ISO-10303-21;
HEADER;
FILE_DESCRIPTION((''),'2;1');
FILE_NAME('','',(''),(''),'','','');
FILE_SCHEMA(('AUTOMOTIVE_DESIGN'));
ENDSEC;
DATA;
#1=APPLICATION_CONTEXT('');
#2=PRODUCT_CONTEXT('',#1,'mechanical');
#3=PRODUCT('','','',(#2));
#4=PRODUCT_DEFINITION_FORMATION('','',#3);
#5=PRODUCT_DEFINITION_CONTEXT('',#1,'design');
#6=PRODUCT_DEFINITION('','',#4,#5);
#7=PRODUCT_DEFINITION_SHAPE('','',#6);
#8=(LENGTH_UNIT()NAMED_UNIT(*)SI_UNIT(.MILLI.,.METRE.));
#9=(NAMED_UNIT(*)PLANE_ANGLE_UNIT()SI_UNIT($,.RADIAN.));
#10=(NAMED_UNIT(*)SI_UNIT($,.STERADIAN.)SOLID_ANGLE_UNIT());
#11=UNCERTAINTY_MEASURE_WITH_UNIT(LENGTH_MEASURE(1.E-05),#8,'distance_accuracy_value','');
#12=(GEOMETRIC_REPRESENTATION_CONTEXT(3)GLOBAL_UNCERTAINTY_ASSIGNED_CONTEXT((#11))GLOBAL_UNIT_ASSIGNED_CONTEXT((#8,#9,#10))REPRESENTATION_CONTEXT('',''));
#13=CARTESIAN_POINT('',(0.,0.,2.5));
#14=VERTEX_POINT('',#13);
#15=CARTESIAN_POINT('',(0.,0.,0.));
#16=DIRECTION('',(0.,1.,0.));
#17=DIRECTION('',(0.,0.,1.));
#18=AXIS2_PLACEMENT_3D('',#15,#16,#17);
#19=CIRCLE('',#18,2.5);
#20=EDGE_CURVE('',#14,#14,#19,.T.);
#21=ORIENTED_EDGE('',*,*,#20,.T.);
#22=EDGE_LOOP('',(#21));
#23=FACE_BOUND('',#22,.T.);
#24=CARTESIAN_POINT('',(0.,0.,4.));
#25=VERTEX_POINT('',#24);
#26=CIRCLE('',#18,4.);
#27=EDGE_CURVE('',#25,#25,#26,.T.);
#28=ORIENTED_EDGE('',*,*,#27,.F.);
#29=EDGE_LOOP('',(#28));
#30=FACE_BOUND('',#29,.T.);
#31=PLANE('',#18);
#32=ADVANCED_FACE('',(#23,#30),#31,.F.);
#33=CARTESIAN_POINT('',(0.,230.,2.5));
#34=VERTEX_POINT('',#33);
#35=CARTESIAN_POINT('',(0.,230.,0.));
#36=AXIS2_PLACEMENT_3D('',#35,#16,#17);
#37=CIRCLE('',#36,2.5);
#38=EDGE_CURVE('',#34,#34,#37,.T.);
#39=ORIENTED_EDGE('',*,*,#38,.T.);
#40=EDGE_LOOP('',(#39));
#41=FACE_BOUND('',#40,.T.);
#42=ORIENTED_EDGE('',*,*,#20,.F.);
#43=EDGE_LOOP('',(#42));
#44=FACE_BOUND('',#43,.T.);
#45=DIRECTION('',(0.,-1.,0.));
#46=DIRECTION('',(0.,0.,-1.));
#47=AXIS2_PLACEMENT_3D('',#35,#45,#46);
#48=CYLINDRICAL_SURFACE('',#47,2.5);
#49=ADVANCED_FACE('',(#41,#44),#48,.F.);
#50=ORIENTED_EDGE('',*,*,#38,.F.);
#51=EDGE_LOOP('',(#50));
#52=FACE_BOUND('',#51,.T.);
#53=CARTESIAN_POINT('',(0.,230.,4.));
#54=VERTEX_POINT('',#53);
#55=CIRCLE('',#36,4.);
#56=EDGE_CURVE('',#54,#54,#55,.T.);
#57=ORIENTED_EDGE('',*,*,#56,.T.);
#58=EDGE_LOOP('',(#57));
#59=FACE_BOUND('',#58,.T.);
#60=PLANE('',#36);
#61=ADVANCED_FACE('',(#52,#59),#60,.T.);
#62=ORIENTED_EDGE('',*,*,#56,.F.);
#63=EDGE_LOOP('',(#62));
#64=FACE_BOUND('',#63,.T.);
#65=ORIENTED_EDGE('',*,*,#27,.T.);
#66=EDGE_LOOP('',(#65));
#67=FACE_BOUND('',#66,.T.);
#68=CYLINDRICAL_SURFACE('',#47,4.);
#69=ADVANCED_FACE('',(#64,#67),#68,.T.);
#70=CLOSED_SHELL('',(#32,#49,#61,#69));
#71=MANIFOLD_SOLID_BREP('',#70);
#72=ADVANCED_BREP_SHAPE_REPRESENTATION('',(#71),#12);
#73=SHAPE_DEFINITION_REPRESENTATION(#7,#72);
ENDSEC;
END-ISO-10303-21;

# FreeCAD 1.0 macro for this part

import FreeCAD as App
import Part
import Sketcher
from FreeCAD import Vector
Q = App.Units.Quantity

doc = App.newDocument("Part")
body = doc.addObject("PartDesign::Body", "Body")

sketch1 = body.newObject("Sketcher::SketchObject", "Sketch")
sketch1.AttachmentSupport = (doc.getObject("XZ_Plane"), [""])
sketch1.MapMode = "FlatFace"
sketch1.addGeometry([
    Part.Circle(Vector(0, 0, 0), Vector(0, 0, 1), 4),
    Part.Circle(Vector(0, 0, 0), Vector(0, 0, 1), 2.5),
], False)
sketch1.addConstraint([
    Sketcher.Constraint("Coincident", 0, 3, -1, 1),
    Sketcher.Constraint("Coincident", 1, 3, -1, 1),
    Sketcher.Constraint("Diameter", 0, Q("8 mm")),
    Sketcher.Constraint("Diameter", 1, Q("5 mm")),
])
pad1 = body.newObject("PartDesign::Pad", "Pad")
pad1.Profile = sketch1
pad1.Length = 230
pad1.Reversed = True

doc.recompute()
